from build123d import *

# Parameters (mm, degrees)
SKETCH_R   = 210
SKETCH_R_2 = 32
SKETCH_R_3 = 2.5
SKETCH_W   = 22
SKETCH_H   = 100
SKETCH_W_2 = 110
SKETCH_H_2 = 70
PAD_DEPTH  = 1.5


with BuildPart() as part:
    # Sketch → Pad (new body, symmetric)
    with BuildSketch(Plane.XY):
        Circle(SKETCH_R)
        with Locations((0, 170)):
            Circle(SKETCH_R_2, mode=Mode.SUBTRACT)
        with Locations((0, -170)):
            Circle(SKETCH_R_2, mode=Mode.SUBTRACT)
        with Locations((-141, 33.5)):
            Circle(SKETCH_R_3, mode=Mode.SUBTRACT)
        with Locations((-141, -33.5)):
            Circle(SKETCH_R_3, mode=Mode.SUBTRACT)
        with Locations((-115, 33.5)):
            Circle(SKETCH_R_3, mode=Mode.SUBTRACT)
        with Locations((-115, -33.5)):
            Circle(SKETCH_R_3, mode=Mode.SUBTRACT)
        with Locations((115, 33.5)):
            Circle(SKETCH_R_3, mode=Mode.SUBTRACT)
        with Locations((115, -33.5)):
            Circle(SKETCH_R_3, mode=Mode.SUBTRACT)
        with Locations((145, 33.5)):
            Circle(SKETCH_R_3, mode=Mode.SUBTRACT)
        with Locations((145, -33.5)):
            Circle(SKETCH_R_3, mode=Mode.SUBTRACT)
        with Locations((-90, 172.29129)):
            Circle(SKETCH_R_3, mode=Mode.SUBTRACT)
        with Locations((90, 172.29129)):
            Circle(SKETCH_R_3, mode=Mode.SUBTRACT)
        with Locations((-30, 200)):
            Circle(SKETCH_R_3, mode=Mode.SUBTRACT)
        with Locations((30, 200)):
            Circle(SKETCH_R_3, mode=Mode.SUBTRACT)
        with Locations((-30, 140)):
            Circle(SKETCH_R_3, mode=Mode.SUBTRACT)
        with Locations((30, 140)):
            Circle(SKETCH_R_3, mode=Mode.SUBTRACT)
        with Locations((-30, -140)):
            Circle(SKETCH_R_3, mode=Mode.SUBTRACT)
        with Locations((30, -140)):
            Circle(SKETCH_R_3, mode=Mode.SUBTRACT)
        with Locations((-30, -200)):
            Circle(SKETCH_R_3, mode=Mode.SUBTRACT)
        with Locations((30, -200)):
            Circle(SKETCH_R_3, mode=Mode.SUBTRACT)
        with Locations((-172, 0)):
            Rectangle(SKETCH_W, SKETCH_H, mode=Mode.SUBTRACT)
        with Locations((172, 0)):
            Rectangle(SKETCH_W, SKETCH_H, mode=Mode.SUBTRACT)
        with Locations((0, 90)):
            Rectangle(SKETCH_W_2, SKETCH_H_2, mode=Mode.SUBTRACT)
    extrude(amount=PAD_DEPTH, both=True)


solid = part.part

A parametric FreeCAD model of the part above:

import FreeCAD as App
import Part
import Sketcher

doc = App.newDocument("Part")
body = doc.addObject("PartDesign::Body", "Body")

sketch1 = doc.addObject("Sketcher::SketchObject", "Sketch")
body.addObject(sketch1)
sketch1.AttachmentSupport = (doc.XY_Plane, [""])
sketch1.MapMode = "FlatFace"
sketch1.addGeometry(Part.Circle(App.Vector(0, 0, 0), App.Vector(0, 0, 1), 210), False)
sketch1.addGeometry(Part.Circle(App.Vector(-30, -200, 0), App.Vector(0, 0, 1), 2.5), False)
sketch1.addGeometry(Part.Circle(App.Vector(-30, -140, 0), App.Vector(0, 0, 1), 2.5), False)
sketch1.addGeometry(Part.Circle(App.Vector(-141, -33.5, 0), App.Vector(0, 0, 1), 2.5), False)
sketch1.addGeometry(Part.Circle(App.Vector(-115, -33.5, 0), App.Vector(0, 0, 1), 2.5), False)
sketch1.addGeometry(Part.Circle(App.Vector(30, -200, 0), App.Vector(0, 0, 1), 2.5), False)
sketch1.addGeometry(Part.Circle(App.Vector(0, -170, 0), App.Vector(0, 0, 1), 32), False)
sketch1.addGeometry(Part.Circle(App.Vector(30, -140, 0), App.Vector(0, 0, 1), 2.5), False)
sketch1.addGeometry(Part.Circle(App.Vector(115, -33.5, 0), App.Vector(0, 0, 1), 2.5), False)
sketch1.addGeometry(Part.Circle(App.Vector(145, -33.5, 0), App.Vector(0, 0, 1), 2.5), False)
sketch1.addGeometry(Part.LineSegment(App.Vector(-161, -50, 0), App.Vector(-183, -50, 0)), False)
sketch1.addGeometry(Part.LineSegment(App.Vector(-183, -50, 0), App.Vector(-183, 50, 0)), False)
sketch1.addGeometry(Part.LineSegment(App.Vector(-183, 50, 0), App.Vector(-161, 50, 0)), False)
sketch1.addGeometry(Part.LineSegment(App.Vector(-161, 50, 0), App.Vector(-161, -50, 0)), False)
sketch1.addGeometry(Part.Circle(App.Vector(-141, 33.5, 0), App.Vector(0, 0, 1), 2.5), False)
sketch1.addGeometry(Part.Circle(App.Vector(-115, 33.5, 0), App.Vector(0, 0, 1), 2.5), False)
sketch1.addGeometry(Part.Circle(App.Vector(-30, 140, 0), App.Vector(0, 0, 1), 2.5), False)
sketch1.addGeometry(Part.Circle(App.Vector(-90, 172.3, 0), App.Vector(0, 0, 1), 2.5), False)
sketch1.addGeometry(Part.Circle(App.Vector(-30, 200, 0), App.Vector(0, 0, 1), 2.5), False)
sketch1.addGeometry(Part.LineSegment(App.Vector(55, 55, 0), App.Vector(-55, 55, 0)), False)
sketch1.addGeometry(Part.LineSegment(App.Vector(-55, 55, 0), App.Vector(-55, 125, 0)), False)
sketch1.addGeometry(Part.LineSegment(App.Vector(-55, 125, 0), App.Vector(55, 125, 0)), False)
sketch1.addGeometry(Part.LineSegment(App.Vector(55, 125, 0), App.Vector(55, 55, 0)), False)
sketch1.addGeometry(Part.Circle(App.Vector(115, 33.5, 0), App.Vector(0, 0, 1), 2.5), False)
sketch1.addGeometry(Part.LineSegment(App.Vector(183, -50, 0), App.Vector(161, -50, 0)), False)
sketch1.addGeometry(Part.LineSegment(App.Vector(161, -50, 0), App.Vector(161, 50, 0)), False)
sketch1.addGeometry(Part.LineSegment(App.Vector(161, 50, 0), App.Vector(183, 50, 0)), False)
sketch1.addGeometry(Part.LineSegment(App.Vector(183, 50, 0), App.Vector(183, -50, 0)), False)
sketch1.addGeometry(Part.Circle(App.Vector(145, 33.5, 0), App.Vector(0, 0, 1), 2.5), False)
sketch1.addGeometry(Part.Circle(App.Vector(30, 140, 0), App.Vector(0, 0, 1), 2.5), False)
sketch1.addGeometry(Part.Circle(App.Vector(0, 170, 0), App.Vector(0, 0, 1), 32), False)
sketch1.addGeometry(Part.Circle(App.Vector(30, 200, 0), App.Vector(0, 0, 1), 2.5), False)
sketch1.addGeometry(Part.Circle(App.Vector(90, 172.3, 0), App.Vector(0, 0, 1), 2.5), False)
sketch1.addConstraint(Sketcher.Constraint("Coincident", 10, 2, 11, 1))
sketch1.addConstraint(Sketcher.Constraint("Coincident", 11, 2, 12, 1))
sketch1.addConstraint(Sketcher.Constraint("Coincident", 12, 2, 13, 1))
sketch1.addConstraint(Sketcher.Constraint("Coincident", 13, 2, 10, 1))
sketch1.addConstraint(Sketcher.Constraint("Coincident", 19, 2, 20, 1))
sketch1.addConstraint(Sketcher.Constraint("Coincident", 20, 2, 21, 1))
sketch1.addConstraint(Sketcher.Constraint("Coincident", 21, 2, 22, 1))
sketch1.addConstraint(Sketcher.Constraint("Coincident", 22, 2, 19, 1))
sketch1.addConstraint(Sketcher.Constraint("Coincident", 24, 2, 25, 1))
sketch1.addConstraint(Sketcher.Constraint("Coincident", 25, 2, 26, 1))
sketch1.addConstraint(Sketcher.Constraint("Coincident", 26, 2, 27, 1))
sketch1.addConstraint(Sketcher.Constraint("Coincident", 27, 2, 24, 1))
sketch1.addConstraint(Sketcher.Constraint("Horizontal", 10))
sketch1.addConstraint(Sketcher.Constraint("Vertical", 11))
sketch1.addConstraint(Sketcher.Constraint("Horizontal", 12))
sketch1.addConstraint(Sketcher.Constraint("Vertical", 13))
sketch1.addConstraint(Sketcher.Constraint("Horizontal", 19))
sketch1.addConstraint(Sketcher.Constraint("Vertical", 20))
sketch1.addConstraint(Sketcher.Constraint("Horizontal", 21))
sketch1.addConstraint(Sketcher.Constraint("Vertical", 22))
sketch1.addConstraint(Sketcher.Constraint("Horizontal", 24))
sketch1.addConstraint(Sketcher.Constraint("Vertical", 25))
sketch1.addConstraint(Sketcher.Constraint("Horizontal", 26))
sketch1.addConstraint(Sketcher.Constraint("Vertical", 27))
sketch1.addConstraint(Sketcher.Constraint("Coincident", 0, 3, -1, 1))
sketch1.addConstraint(Sketcher.Constraint("Equal", 1, 2))
sketch1.addConstraint(Sketcher.Constraint("Equal", 2, 3))
sketch1.addConstraint(Sketcher.Constraint("Equal", 3, 4))
sketch1.addConstraint(Sketcher.Constraint("Equal", 4, 5))
sketch1.addConstraint(Sketcher.Constraint("Equal", 5, 7))
sketch1.addConstraint(Sketcher.Constraint("Equal", 7, 8))
sketch1.addConstraint(Sketcher.Constraint("Equal", 8, 9))
sketch1.addConstraint(Sketcher.Constraint("Equal", 9, 14))
sketch1.addConstraint(Sketcher.Constraint("Equal", 14, 15))
sketch1.addConstraint(Sketcher.Constraint("Equal", 15, 16))
sketch1.addConstraint(Sketcher.Constraint("Equal", 16, 17))
sketch1.addConstraint(Sketcher.Constraint("Equal", 17, 18))
sketch1.addConstraint(Sketcher.Constraint("Equal", 18, 23))
sketch1.addConstraint(Sketcher.Constraint("Equal", 23, 28))
sketch1.addConstraint(Sketcher.Constraint("Equal", 28, 29))
sketch1.addConstraint(Sketcher.Constraint("Equal", 6, 30))
sketch1.addConstraint(Sketcher.Constraint("Equal", 29, 31))
sketch1.addConstraint(Sketcher.Constraint("Equal", 31, 32))
sketch1.addConstraint(Sketcher.Constraint("Symmetric", 8, 3, 15, 3, -1, 1))
sketch1.addConstraint(Sketcher.Constraint("Symmetric", 7, 3, 16, 3, -1, 1))
sketch1.addConstraint(Sketcher.Constraint("Symmetric", 5, 3, 18, 3, -1, 1))
sketch1.addConstraint(Sketcher.Constraint("Symmetric", 4, 3, 23, 3, -1, 1))
sketch1.addConstraint(Sketcher.Constraint("Symmetric", 2, 3, 29, 3, -1, 1))
sketch1.addConstraint(Sketcher.Constraint("Symmetric", 6, 3, 30, 3, -1, 1))
sketch1.addConstraint(Sketcher.Constraint("Symmetric", 1, 3, 31, 3, -1, 1))
sketch1.addConstraint(Sketcher.Constraint("Symmetric", 12, 2, 24, 2, -1, 1))
sketch1.addConstraint(Sketcher.Constraint("Symmetric", 10, 2, 26, 2, -1, 1))
sketch1.addConstraint(Sketcher.Constraint("Symmetric", 1, 3, 5, 3, -2))
sketch1.addConstraint(Sketcher.Constraint("Symmetric", 2, 3, 7, 3, -2))
sketch1.addConstraint(Sketcher.Constraint("Symmetric", 4, 3, 8, 3, -2))
sketch1.addConstraint(Sketcher.Constraint("Symmetric", 17, 3, 32, 3, -2))
sketch1.addConstraint(Sketcher.Constraint("Symmetric", 3, 3, 14, 3, -1))
sketch1.addConstraint(Sketcher.Constraint("Symmetric", 9, 3, 28, 3, -1))
sketch1.addConstraint(Sketcher.Constraint("PointOnObject", 6, 3, -2))
sketch1.addConstraint(Sketcher.Constraint("Horizontal", 3, 3, 4, 3))
sketch1.addConstraint(Sketcher.Constraint("Horizontal", 8, 3, 9, 3))
sketch1.addConstraint(Sketcher.Constraint("Horizontal", 13, 2, 24, 2))
sketch1.addConstraint(Sketcher.Constraint("Vertical", 1, 3, 2, 3))
sketch1.addConstraint(Sketcher.Constraint("Diameter", 0, 420.0))
sketch1.addConstraint(Sketcher.Constraint("Diameter", 1, 5.0))
sketch1.addConstraint(Sketcher.Constraint("Diameter", 6, 64.0))
sketch1.addConstraint(Sketcher.Constraint("DistanceX", 10, 2, 10, 1, 22.0))
sketch1.addConstraint(Sketcher.Constraint("DistanceX", 19, 2, 19, 1, 110.0))
sketch1.addConstraint(Sketcher.Constraint("DistanceY", 11, 1, 11, 2, 100.0))
sketch1.addConstraint(Sketcher.Constraint("DistanceY", 20, 1, 20, 2, 70.0))
sketch1.addConstraint(Sketcher.Constraint("DistanceX", 1, 3, -1, 1, 30.0))
sketch1.addConstraint(Sketcher.Constraint("DistanceY", 1, 3, -1, 1, 200.0))
sketch1.addConstraint(Sketcher.Constraint("DistanceY", 2, 3, -1, 1, 140.0))
sketch1.addConstraint(Sketcher.Constraint("DistanceX", 3, 3, -1, 1, 141.0))
sketch1.addConstraint(Sketcher.Constraint("DistanceX", 4, 3, -1, 1, 115.0))
sketch1.addConstraint(Sketcher.Constraint("DistanceY", 6, 3, -1, 1, 170.0))
sketch1.addConstraint(Sketcher.Constraint("DistanceX", -1, 1, 9, 3, 145.0))
sketch1.addConstraint(Sketcher.Constraint("DistanceX", 17, 3, -1, 1, 90.0))
sketch1.addConstraint(Sketcher.Constraint("DistanceX", 10, 2, -1, 1, 183.0))
sketch1.addConstraint(Sketcher.Constraint("DistanceX", 19, 2, -1, 1, 55.0))
sketch1.addConstraint(Sketcher.Constraint("DistanceY", -1, 1, 19, 2, 55.0))
sketch1.addConstraint(Sketcher.Constraint("DistanceY", 3, 3, 14, 3, 67.0))
sketch1.addConstraint(Sketcher.Constraint("DistanceY", -1, 1, 17, 3, 172.29129))
pad1 = doc.addObject("PartDesign::Pad", "Pad")
body.addObject(pad1)
pad1.Profile = sketch1
pad1.Length = 3
pad1.Midplane = True

doc.recompute()
